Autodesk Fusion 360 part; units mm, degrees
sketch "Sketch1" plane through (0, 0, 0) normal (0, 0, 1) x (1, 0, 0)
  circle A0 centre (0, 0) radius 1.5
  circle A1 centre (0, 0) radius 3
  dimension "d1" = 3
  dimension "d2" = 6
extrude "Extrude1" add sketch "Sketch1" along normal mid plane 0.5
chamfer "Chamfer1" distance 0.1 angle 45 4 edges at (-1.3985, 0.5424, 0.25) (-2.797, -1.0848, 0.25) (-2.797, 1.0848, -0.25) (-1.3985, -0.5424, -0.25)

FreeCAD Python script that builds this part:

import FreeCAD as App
import Part
import Sketcher
from FreeCAD import Vector


def edges_at(feature, points):
    """Names of the edges that pass closest to the given points."""
    edges = feature.Shape.Edges
    near = lambda p: min(range(len(edges)), key=lambda i: edges[i].distToShape(Part.Vertex(*p))[0])
    return sorted({f"Edge{near(p) + 1}" for p in points})

doc = App.newDocument("Part")
body = doc.addObject("PartDesign::Body", "Body")

sketch1 = body.newObject("Sketcher::SketchObject", "Sketch")
sketch1.AttachmentSupport = (doc.getObject("XY_Plane"), [""])
sketch1.MapMode = "FlatFace"
sketch1.addGeometry(Part.Circle(Vector(0, 0, 0), Vector(0, 0, 1), 3), False)
sketch1.addGeometry(Part.Circle(Vector(0, 0, 0), Vector(0, 0, 1), 1.5), False)
sketch1.addConstraint(Sketcher.Constraint("Coincident", 0, 3, -1, 1))
sketch1.addConstraint(Sketcher.Constraint("Coincident", 1, 3, -1, 1))
sketch1.addConstraint(Sketcher.Constraint("Diameter", 0, 6.0))
sketch1.addConstraint(Sketcher.Constraint("Diameter", 1, 3.0))
pad1 = body.newObject("PartDesign::Pad", "Pad")
pad1.Profile = sketch1
pad1.Length = 0.5
pad1.Midplane = True
doc.recompute()

chamfer = body.newObject("PartDesign::Chamfer", "Chamfer")
chamfer.Base = (pad1, edges_at(pad1, [
    (-1.399, 0.542, 0.25),
    (-2.797, -1.085, 0.25),
    (-2.797, 1.085, -0.25),
    (-1.399, -0.542, -0.25),
]))
chamfer.Size = 0.1

doc.recompute()
